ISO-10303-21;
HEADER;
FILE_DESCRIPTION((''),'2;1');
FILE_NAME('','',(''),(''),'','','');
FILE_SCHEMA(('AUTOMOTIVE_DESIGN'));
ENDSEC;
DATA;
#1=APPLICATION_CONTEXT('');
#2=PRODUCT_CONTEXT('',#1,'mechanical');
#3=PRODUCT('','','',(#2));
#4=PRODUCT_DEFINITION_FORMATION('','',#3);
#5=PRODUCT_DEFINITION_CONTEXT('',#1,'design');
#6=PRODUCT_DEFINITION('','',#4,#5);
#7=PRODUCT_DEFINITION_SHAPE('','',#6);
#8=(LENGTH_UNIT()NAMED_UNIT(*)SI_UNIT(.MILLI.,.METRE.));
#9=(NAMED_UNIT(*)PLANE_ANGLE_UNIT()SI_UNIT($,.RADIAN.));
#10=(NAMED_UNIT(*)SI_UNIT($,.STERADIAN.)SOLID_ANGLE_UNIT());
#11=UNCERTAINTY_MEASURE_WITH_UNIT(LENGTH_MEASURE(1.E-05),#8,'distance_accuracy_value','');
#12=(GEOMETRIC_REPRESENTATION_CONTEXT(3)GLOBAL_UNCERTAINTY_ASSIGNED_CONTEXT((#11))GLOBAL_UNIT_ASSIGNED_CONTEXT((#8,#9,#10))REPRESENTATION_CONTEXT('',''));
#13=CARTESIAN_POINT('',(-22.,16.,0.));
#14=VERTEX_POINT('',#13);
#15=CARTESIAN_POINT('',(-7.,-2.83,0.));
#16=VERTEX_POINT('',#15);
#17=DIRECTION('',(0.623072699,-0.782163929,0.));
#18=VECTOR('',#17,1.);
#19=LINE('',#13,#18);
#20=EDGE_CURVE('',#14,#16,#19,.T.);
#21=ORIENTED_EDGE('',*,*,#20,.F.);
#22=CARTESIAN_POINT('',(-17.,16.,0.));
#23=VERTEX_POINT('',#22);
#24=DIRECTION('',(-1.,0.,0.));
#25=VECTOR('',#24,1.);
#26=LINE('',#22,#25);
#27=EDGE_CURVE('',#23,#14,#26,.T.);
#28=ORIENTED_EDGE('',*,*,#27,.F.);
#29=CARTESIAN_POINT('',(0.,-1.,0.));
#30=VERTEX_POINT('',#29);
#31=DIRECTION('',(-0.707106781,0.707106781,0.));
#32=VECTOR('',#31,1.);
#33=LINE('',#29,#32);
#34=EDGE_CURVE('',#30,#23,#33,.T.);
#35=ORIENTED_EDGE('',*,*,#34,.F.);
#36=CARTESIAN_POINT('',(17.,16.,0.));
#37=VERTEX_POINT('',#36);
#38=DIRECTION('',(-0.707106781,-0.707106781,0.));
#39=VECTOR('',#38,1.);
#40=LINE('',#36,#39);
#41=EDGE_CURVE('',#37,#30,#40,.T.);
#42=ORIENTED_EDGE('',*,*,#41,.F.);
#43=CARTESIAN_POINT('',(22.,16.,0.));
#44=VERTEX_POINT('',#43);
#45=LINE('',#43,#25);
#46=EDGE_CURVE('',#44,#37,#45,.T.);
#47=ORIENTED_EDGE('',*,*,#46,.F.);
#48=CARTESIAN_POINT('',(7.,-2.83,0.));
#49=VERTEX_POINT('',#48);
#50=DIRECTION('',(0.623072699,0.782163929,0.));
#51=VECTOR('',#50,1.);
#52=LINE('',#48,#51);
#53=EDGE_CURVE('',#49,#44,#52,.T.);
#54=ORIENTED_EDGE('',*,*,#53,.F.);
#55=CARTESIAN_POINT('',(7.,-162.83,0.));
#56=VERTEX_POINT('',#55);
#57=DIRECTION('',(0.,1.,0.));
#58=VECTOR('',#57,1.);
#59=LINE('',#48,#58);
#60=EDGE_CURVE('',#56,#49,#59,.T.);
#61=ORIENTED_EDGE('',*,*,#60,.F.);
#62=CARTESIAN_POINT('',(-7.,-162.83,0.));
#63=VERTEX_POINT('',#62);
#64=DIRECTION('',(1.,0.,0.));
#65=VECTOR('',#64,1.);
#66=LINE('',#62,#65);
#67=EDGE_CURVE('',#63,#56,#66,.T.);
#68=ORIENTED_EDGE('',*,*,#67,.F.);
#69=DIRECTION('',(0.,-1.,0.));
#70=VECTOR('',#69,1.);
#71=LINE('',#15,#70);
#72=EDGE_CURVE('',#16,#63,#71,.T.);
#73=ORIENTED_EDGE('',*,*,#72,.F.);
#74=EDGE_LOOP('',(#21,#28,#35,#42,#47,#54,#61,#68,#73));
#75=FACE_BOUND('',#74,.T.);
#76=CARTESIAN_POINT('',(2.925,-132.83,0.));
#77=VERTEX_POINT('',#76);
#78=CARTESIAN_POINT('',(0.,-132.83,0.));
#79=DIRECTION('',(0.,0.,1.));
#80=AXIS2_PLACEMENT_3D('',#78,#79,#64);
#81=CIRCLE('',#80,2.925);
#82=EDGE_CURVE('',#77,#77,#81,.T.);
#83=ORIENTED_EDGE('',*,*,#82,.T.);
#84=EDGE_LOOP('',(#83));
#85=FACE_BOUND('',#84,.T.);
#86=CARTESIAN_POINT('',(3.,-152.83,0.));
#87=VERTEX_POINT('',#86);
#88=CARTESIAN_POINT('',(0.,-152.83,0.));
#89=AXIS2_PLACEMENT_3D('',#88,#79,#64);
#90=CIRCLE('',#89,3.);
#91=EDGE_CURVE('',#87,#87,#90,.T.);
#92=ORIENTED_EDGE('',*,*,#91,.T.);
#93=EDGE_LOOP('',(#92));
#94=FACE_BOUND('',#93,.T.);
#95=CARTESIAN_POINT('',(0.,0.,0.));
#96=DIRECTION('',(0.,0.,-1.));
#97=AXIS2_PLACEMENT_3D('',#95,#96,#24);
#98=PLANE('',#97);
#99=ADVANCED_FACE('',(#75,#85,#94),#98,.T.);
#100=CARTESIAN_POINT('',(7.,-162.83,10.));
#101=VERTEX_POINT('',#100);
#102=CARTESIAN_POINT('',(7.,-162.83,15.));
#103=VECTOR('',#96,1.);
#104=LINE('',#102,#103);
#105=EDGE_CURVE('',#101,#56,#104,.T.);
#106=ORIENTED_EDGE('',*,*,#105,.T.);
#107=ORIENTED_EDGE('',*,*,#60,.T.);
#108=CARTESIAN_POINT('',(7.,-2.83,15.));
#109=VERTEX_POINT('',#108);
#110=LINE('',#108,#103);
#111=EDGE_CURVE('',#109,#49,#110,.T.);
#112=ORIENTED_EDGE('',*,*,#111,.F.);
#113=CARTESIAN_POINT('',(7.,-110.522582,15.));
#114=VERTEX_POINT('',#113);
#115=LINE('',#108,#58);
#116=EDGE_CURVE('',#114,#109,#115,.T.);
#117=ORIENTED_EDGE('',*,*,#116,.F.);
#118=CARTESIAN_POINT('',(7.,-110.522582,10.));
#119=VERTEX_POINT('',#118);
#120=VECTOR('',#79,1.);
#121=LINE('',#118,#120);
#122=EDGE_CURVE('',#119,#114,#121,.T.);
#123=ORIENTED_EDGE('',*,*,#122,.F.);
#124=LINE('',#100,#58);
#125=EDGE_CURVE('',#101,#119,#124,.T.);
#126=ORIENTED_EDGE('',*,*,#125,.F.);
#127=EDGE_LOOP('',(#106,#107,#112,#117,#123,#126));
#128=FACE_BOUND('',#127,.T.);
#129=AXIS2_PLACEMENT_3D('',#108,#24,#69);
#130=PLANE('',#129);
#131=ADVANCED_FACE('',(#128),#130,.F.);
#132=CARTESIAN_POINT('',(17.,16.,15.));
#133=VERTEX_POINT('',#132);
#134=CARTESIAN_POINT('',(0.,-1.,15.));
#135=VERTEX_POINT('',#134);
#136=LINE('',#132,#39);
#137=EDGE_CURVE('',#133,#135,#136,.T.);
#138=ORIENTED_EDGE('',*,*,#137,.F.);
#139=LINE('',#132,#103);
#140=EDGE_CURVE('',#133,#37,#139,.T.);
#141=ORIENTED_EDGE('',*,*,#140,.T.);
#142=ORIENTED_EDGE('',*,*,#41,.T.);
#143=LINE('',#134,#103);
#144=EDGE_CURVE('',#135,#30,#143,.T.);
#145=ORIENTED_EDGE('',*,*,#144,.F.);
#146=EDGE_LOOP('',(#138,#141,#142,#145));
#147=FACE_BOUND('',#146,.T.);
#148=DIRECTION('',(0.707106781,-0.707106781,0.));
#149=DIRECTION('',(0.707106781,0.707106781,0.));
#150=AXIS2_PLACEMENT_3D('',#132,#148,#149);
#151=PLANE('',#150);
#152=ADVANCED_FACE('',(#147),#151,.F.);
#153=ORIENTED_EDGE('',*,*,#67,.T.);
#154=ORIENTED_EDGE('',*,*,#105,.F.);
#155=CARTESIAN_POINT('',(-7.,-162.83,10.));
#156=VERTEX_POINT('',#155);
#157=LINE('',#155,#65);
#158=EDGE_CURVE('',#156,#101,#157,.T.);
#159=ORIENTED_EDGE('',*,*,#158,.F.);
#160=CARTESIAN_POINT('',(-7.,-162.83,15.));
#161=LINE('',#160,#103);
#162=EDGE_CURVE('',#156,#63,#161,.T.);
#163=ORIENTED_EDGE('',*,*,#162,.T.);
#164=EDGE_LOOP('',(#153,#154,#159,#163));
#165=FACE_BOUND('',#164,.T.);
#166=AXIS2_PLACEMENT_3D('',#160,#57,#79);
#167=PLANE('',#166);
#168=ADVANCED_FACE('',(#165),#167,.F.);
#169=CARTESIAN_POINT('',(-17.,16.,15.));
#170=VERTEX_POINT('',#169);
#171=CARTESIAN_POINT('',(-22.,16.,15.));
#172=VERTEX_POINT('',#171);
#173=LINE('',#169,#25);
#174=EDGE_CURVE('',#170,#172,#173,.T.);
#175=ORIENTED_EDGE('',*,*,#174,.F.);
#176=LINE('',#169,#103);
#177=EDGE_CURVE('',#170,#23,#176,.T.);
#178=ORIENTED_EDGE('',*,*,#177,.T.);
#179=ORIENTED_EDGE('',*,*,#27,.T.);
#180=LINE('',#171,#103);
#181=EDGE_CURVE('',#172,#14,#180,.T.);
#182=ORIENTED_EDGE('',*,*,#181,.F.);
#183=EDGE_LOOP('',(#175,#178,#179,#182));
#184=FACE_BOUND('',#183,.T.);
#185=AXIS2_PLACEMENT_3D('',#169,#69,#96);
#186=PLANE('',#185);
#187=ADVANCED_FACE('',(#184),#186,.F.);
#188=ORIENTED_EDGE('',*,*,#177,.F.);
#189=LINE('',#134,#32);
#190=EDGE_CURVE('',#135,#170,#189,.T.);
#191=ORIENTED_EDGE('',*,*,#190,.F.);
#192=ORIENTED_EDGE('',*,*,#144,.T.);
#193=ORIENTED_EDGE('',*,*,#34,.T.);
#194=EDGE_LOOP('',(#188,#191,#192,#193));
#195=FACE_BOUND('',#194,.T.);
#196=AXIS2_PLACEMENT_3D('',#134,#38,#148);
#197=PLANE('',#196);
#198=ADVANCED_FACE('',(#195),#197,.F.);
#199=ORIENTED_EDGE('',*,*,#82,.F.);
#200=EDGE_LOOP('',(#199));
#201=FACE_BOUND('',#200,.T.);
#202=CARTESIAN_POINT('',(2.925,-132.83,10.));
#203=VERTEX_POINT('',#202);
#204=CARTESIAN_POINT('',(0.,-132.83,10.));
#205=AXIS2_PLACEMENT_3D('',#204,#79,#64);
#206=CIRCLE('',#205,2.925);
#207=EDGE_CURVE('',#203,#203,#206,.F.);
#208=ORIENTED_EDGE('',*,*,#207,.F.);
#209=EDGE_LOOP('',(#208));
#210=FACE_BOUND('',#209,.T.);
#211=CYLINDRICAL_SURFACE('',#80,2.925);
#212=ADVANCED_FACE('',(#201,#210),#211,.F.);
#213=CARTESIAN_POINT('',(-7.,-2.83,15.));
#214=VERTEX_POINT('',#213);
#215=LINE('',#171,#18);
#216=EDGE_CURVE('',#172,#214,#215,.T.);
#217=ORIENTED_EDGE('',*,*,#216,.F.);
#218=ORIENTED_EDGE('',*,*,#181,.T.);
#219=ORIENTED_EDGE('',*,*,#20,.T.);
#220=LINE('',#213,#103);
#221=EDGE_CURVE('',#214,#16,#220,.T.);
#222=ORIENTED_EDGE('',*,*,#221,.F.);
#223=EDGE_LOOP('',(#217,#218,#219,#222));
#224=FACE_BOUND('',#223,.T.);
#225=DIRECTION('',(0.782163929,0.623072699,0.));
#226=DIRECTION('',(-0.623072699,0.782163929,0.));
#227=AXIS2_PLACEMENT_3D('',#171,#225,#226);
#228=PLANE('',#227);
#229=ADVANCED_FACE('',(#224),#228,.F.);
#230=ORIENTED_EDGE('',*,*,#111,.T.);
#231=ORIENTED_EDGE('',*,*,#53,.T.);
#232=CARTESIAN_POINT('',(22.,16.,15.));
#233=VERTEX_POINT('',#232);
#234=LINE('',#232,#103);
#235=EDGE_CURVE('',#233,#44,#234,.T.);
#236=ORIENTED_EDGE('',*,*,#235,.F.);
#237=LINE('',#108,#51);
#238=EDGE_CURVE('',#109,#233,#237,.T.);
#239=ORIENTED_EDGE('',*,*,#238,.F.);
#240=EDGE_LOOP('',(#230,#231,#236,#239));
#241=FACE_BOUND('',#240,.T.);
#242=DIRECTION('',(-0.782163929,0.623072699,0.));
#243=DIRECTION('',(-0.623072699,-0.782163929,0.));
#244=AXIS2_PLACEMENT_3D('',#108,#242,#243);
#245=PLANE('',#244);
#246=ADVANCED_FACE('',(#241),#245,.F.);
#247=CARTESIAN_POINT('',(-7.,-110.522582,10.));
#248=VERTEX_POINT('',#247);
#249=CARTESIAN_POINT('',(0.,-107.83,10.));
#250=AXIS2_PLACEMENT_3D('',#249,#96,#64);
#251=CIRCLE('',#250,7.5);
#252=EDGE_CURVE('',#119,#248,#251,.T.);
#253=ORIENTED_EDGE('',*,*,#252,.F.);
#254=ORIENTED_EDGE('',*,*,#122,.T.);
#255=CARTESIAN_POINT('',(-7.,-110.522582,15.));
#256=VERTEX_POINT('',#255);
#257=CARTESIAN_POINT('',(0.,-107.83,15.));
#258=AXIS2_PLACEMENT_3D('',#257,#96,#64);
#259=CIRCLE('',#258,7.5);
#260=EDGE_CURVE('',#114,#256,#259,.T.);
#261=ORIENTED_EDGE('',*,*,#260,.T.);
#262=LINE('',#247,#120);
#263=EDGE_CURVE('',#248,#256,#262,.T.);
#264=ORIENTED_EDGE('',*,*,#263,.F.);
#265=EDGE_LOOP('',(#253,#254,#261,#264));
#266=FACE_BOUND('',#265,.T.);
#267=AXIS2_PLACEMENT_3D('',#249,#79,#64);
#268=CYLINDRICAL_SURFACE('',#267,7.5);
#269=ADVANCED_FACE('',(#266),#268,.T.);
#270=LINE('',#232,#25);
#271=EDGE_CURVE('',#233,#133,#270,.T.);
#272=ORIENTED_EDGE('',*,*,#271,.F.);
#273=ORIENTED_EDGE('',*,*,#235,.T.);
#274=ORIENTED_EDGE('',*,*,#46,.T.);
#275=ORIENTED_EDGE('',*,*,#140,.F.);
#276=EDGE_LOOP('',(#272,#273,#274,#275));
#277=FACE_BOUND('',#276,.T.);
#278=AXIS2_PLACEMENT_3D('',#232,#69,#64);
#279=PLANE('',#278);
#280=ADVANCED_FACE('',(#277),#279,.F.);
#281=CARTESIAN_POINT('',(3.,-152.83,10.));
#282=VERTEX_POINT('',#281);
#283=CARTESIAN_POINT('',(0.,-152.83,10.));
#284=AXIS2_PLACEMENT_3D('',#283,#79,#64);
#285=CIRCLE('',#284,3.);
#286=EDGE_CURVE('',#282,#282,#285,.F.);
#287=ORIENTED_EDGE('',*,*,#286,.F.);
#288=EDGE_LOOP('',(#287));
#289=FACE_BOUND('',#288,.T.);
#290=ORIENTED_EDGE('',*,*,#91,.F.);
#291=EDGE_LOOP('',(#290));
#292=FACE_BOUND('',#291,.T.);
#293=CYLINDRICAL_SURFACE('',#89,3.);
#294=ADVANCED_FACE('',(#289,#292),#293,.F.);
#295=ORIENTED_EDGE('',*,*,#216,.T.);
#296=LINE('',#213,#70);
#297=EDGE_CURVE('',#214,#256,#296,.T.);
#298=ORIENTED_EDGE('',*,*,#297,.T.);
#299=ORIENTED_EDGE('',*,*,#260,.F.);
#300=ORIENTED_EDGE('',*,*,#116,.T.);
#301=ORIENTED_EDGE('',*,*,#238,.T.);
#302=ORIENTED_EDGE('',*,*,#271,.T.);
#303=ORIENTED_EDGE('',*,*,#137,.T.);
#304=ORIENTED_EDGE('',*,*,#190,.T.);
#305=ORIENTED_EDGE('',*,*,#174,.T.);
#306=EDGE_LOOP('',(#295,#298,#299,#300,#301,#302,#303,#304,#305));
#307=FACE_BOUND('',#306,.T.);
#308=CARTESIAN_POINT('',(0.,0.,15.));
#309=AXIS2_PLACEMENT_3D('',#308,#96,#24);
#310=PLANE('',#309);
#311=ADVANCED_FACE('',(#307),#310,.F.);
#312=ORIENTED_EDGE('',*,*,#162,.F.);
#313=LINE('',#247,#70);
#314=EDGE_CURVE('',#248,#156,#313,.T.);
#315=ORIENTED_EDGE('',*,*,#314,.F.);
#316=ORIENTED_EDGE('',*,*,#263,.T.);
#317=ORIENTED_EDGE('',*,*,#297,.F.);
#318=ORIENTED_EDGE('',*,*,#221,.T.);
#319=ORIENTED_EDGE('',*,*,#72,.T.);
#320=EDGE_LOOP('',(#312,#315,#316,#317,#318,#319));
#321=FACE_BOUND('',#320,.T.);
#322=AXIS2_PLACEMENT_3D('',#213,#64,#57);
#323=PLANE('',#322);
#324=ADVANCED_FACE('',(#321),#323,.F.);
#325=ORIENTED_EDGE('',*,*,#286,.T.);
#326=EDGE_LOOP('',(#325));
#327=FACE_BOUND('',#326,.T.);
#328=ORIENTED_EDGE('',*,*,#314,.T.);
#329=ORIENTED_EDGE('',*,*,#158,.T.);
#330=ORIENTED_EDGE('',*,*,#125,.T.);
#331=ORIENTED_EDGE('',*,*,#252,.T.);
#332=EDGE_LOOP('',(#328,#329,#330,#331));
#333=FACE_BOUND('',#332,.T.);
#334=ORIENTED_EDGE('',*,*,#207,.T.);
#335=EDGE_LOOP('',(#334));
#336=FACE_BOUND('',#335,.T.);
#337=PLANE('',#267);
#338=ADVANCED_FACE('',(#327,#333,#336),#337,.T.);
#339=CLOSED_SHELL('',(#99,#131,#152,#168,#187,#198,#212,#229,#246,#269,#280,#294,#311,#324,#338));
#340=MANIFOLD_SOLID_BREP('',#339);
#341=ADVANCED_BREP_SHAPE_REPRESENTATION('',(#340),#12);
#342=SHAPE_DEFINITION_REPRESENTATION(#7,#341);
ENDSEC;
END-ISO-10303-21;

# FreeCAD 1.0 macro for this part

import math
import FreeCAD as App
import Part
import Sketcher

V = App.Vector
Q = App.Units.Quantity

doc = App.newDocument("Part")
params = doc.addObject("Spreadsheet::Sheet", "Params")
for row, (alias, value) in enumerate([
    ("sketch1_width", "5 mm"),
    ("sketch1_width2", "14 mm"),
    ("sketch1_height", "160 mm"),
    ("pad1_length", "15 mm"),
    ("sketch2_diameter", "6 mm"),
    ("sketch2_diameter2", "5.85 mm"),
    ("sketch3_radius", "7.5 mm"),
    ("sketch3_width", "14 mm"),
    ("pocket2_length", "5 mm"),
], start=1):
    params.set(f"A{row}", alias)
    params.set(f"B{row}", "=" + value)
    params.setAlias(f"B{row}", alias)

body = doc.addObject("PartDesign::Body", "Body")

sketch1 = body.newObject("Sketcher::SketchObject", "Sketch")
sketch1.AttachmentSupport = (doc.getObject("XY_Plane"), [""])
sketch1.MapMode = "FlatFace"
sketch1.addGeometry(Part.LineSegment(V(7, -3, 0), V(22, 16, 0)), False)
sketch1.addGeometry(Part.LineSegment(V(22, 16, 0), V(17, 16, 0)), False)
sketch1.addGeometry(Part.LineSegment(V(17, 16, 0), V(0, -1, 0)), False)
sketch1.addGeometry(Part.LineSegment(V(0, -1, 0), V(-17, 16, 0)), False)
sketch1.addGeometry(Part.LineSegment(V(-17, 16, 0), V(-22, 16, 0)), False)
sketch1.addGeometry(Part.LineSegment(V(-22, 16, 0), V(-7, -3, 0)), False)
sketch1.addGeometry(Part.LineSegment(V(-7, -3, 0), V(-7, -163, 0)), False)
sketch1.addGeometry(Part.LineSegment(V(-7, -163, 0), V(7, -163, 0)), False)
sketch1.addGeometry(Part.LineSegment(V(7, -163, 0), V(7, -3, 0)), False)
sketch1.addConstraint(Sketcher.Constraint("Coincident", 0, 2, 1, 1))
sketch1.addConstraint(Sketcher.Constraint("Coincident", 1, 2, 2, 1))
sketch1.addConstraint(Sketcher.Constraint("Coincident", 2, 2, 3, 1))
sketch1.addConstraint(Sketcher.Constraint("Coincident", 3, 2, 4, 1))
sketch1.addConstraint(Sketcher.Constraint("Coincident", 4, 2, 5, 1))
sketch1.addConstraint(Sketcher.Constraint("Coincident", 5, 2, 6, 1))
sketch1.addConstraint(Sketcher.Constraint("Coincident", 6, 2, 7, 1))
sketch1.addConstraint(Sketcher.Constraint("Coincident", 7, 2, 8, 1))
sketch1.addConstraint(Sketcher.Constraint("Coincident", 8, 2, 0, 1))
sketch1.addConstraint(Sketcher.Constraint("Horizontal", 1))
sketch1.addConstraint(Sketcher.Constraint("Horizontal", 4))
sketch1.addConstraint(Sketcher.Constraint("Vertical", 6))
sketch1.addConstraint(Sketcher.Constraint("Horizontal", 7))
sketch1.addConstraint(Sketcher.Constraint("Vertical", 8))
sketch1.addConstraint(Sketcher.Constraint("Symmetric", 1, 2, 3, 2, -2))
sketch1.addConstraint(Sketcher.Constraint("Symmetric", 5, 2, 8, 2, -2))
sketch1.addConstraint(Sketcher.Constraint("PointOnObject", 2, 2, -2))
sketch1.addConstraint(Sketcher.Constraint("Perpendicular", 2, 3))
sketch1.addConstraint(Sketcher.Constraint("Equal", 1, 4))
sketch1.addConstraint(Sketcher.Constraint("DistanceX", 1, 2, 1, 1, Q("5 mm")))
sketch1.addConstraint(Sketcher.Constraint("DistanceX", 7, 1, 7, 2, Q("14 mm")))
sketch1.addConstraint(Sketcher.Constraint("DistanceY", 6, 2, 6, 1, Q("160 mm")))
sketch1.addConstraint(Sketcher.Constraint("DistanceX", -1, 1, 0, 2, Q("22 mm")))
sketch1.addConstraint(Sketcher.Constraint("DistanceY", -1, 1, 0, 2, Q("16 mm")))
sketch1.addConstraint(Sketcher.Constraint("DistanceY", 5, 2, -1, 1, Q("2.83 mm")))
sketch1.setExpression("Constraints[19]", "Params.sketch1_width")
sketch1.setExpression("Constraints[20]", "Params.sketch1_width2")
sketch1.setExpression("Constraints[21]", "Params.sketch1_height")
pad1 = body.newObject("PartDesign::Pad", "Pad")
pad1.Profile = sketch1
pad1.setExpression("Length", "Params.pad1_length")

sketch2 = body.newObject("Sketcher::SketchObject", "Sketch001")
sketch2.AttachmentSupport = (doc.getObject("XY_Plane"), [""])
sketch2.MapMode = "FlatFace"
sketch2.AttachmentOffset = App.Placement(V(0, 0, 15), App.Rotation())
sketch2.addGeometry(Part.Circle(V(0, -132.8, 0), V(0, 0, 1), 2.9), False)
sketch2.addGeometry(Part.Circle(V(0, -152.8, 0), V(0, 0, 1), 3), False)
sketch2.addConstraint(Sketcher.Constraint("PointOnObject", 0, 3, -2))
sketch2.addConstraint(Sketcher.Constraint("PointOnObject", 1, 3, -2))
sketch2.addConstraint(Sketcher.Constraint("Diameter", 1, Q("6 mm")))
sketch2.addConstraint(Sketcher.Constraint("Diameter", 0, Q("5.85 mm")))
sketch2.addConstraint(Sketcher.Constraint("DistanceY", 1, 3, 0, 3, Q("20 mm")))
sketch2.addConstraint(Sketcher.Constraint("DistanceY", 0, 3, -1, 1, Q("132.83 mm")))
sketch2.setExpression("Constraints[2]", "Params.sketch2_diameter")
sketch2.setExpression("Constraints[3]", "Params.sketch2_diameter2")
pocket1 = body.newObject("PartDesign::Pocket", "Pocket")
pocket1.Profile = sketch2
pocket1.Type = "ThroughAll"

sketch3 = body.newObject("Sketcher::SketchObject", "Sketch002")
sketch3.AttachmentSupport = (doc.getObject("XY_Plane"), [""])
sketch3.MapMode = "FlatFace"
sketch3.AttachmentOffset = App.Placement(V(0, 0, 15), App.Rotation())
sketch3.addGeometry(Part.LineSegment(V(-7, -111, 0), V(-7, -163, 0)), False)
sketch3.addGeometry(Part.LineSegment(V(-7, -163, 0), V(7, -163, 0)), False)
sketch3.addGeometry(Part.LineSegment(V(7, -163, 0), V(7, -111, 0)), False)
sketch3.addGeometry(Part.ArcOfCircle(Part.Circle(V(0, -108, 0), V(0, 0, 1), 8), math.radians(-159), math.radians(-21)), False)
sketch3.addConstraint(Sketcher.Constraint("Coincident", 0, 2, 1, 1))
sketch3.addConstraint(Sketcher.Constraint("Coincident", 1, 2, 2, 1))
sketch3.addConstraint(Sketcher.Constraint("Coincident", 2, 2, 3, 2))
sketch3.addConstraint(Sketcher.Constraint("Coincident", 3, 1, 0, 1))
sketch3.addConstraint(Sketcher.Constraint("Vertical", 0))
sketch3.addConstraint(Sketcher.Constraint("Horizontal", 1))
sketch3.addConstraint(Sketcher.Constraint("Vertical", 2))
sketch3.addConstraint(Sketcher.Constraint("Symmetric", 2, 2, 3, 1, -2))
sketch3.addConstraint(Sketcher.Constraint("Radius", 3, Q("7.5 mm")))
sketch3.addConstraint(Sketcher.Constraint("DistanceX", 1, 1, 1, 2, Q("14 mm")))
sketch3.addConstraint(Sketcher.Constraint("DistanceY", 0, 2, 3, 3, Q("55 mm")))
sketch3.addConstraint(Sketcher.Constraint("DistanceY", 3, 3, -1, 1, Q("107.83 mm")))
sketch3.setExpression("Constraints[8]", "Params.sketch3_radius")
sketch3.setExpression("Constraints[9]", "Params.sketch3_width")
pocket2 = body.newObject("PartDesign::Pocket", "Pocket001")
pocket2.Profile = sketch3
pocket2.setExpression("Length", "Params.pocket2_length")

doc.recompute()
